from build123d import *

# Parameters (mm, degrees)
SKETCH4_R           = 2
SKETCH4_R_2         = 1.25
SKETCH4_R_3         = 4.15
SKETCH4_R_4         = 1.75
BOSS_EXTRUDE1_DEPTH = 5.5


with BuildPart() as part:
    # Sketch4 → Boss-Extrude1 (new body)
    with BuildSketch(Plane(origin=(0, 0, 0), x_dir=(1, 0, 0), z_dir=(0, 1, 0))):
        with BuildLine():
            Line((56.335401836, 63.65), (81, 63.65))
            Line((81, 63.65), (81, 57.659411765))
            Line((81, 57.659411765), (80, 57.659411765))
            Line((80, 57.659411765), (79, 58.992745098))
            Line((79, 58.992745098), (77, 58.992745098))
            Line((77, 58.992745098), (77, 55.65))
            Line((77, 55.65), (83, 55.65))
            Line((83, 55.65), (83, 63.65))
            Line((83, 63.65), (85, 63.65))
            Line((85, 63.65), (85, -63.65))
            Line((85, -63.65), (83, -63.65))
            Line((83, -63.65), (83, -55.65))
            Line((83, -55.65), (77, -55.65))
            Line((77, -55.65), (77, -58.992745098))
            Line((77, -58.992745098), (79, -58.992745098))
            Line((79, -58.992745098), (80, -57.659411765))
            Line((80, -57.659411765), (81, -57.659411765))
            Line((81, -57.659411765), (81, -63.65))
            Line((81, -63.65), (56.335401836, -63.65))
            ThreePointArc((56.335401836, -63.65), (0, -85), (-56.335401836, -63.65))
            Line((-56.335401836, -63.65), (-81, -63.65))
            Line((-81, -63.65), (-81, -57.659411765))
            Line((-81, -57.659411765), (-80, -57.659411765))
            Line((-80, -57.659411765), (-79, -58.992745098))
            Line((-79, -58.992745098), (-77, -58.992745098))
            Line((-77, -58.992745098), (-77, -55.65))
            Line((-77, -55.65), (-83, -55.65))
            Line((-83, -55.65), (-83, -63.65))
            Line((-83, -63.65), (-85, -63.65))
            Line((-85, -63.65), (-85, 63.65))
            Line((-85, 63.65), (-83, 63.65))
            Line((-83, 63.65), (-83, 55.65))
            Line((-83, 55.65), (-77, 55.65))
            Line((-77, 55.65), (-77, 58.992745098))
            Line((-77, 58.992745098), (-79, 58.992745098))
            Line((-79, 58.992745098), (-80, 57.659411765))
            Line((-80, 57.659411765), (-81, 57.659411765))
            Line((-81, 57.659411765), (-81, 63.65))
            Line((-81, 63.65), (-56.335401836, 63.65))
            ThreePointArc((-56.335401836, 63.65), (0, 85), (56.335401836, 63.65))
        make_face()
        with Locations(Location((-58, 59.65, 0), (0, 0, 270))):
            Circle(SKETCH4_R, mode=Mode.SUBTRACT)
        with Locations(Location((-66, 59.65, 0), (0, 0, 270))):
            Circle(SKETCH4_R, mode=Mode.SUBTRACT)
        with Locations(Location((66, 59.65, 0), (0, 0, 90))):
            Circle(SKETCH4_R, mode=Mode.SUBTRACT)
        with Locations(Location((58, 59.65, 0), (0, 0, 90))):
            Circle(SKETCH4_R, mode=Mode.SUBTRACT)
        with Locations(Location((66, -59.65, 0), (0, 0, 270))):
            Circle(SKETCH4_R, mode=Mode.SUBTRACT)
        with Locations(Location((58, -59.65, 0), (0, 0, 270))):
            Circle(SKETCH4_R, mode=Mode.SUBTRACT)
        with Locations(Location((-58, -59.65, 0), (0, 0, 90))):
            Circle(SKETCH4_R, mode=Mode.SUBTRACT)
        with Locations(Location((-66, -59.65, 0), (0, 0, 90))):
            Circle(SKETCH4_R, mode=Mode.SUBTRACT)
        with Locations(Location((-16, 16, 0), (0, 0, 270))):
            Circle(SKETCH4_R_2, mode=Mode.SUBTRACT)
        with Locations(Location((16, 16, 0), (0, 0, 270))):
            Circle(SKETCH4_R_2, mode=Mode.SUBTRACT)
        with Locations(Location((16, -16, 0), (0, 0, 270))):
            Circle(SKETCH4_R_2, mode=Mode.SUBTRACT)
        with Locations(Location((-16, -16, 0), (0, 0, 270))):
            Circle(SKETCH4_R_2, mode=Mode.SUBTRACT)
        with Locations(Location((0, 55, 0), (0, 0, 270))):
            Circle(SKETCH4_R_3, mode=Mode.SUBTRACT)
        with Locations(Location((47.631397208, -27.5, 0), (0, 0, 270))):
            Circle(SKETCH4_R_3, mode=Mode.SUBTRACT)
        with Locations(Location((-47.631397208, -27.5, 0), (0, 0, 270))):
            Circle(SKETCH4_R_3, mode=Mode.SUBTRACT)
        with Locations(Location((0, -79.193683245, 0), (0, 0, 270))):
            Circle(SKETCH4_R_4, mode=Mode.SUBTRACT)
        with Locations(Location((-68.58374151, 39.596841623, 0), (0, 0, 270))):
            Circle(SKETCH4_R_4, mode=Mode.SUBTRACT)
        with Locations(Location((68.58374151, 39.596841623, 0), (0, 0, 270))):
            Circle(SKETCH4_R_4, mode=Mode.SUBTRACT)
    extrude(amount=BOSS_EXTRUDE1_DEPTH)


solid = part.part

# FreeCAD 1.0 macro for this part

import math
import FreeCAD as App
import Part
import Sketcher

doc = App.newDocument("Part")
body = doc.addObject("PartDesign::Body", "Body")

# Sketch on XZ plane
sketch1 = doc.addObject("Sketcher::SketchObject", "Sketch")
body.addObject(sketch1)
sketch1.AttachmentSupport = (doc.XZ_Plane, [""])
sketch1.MapMode = "FlatFace"
sketch1.addGeometry([
    Part.LineSegment(App.Vector(81, -63.65, 0), App.Vector(56.335402, -63.65, 0)),  # 0
    Part.ArcOfCircle(Part.Circle(App.Vector(0, 0, 0), App.Vector(0, 0, 1), 85), math.radians(-131.511429), math.radians(-48.488571)),  # 1
    Part.LineSegment(App.Vector(-56.335402, -63.65, 0), App.Vector(-81, -63.65, 0)),  # 2
    Part.LineSegment(App.Vector(-81, -63.65, 0), App.Vector(-81, -57.659412, 0)),  # 3
    Part.LineSegment(App.Vector(-81, -57.659412, 0), App.Vector(-80, -57.659412, 0)),  # 4
    Part.LineSegment(App.Vector(-80, -57.659412, 0), App.Vector(-79, -58.992745, 0)),  # 5
    Part.LineSegment(App.Vector(-79, -58.992745, 0), App.Vector(-77, -58.992745, 0)),  # 6
    Part.LineSegment(App.Vector(-77, -58.992745, 0), App.Vector(-77, -55.65, 0)),  # 7
    Part.LineSegment(App.Vector(-77, -55.65, 0), App.Vector(-83, -55.65, 0)),  # 8
    Part.LineSegment(App.Vector(-83, -55.65, 0), App.Vector(-83, -63.65, 0)),  # 9
    Part.LineSegment(App.Vector(-83, -63.65, 0), App.Vector(-85, -63.65, 0)),  # 10
    Part.LineSegment(App.Vector(-85, -63.65, 0), App.Vector(-85, 63.65, 0)),  # 11
    Part.LineSegment(App.Vector(-85, 63.65, 0), App.Vector(-83, 63.65, 0)),  # 12
    Part.LineSegment(App.Vector(-83, 63.65, 0), App.Vector(-83, 55.65, 0)),  # 13
    Part.LineSegment(App.Vector(-83, 55.65, 0), App.Vector(-77, 55.65, 0)),  # 14
    Part.LineSegment(App.Vector(-77, 55.65, 0), App.Vector(-77, 58.992745, 0)),  # 15
    Part.LineSegment(App.Vector(-77, 58.992745, 0), App.Vector(-79, 58.992745, 0)),  # 16
    Part.LineSegment(App.Vector(-79, 58.992745, 0), App.Vector(-80, 57.659412, 0)),  # 17
    Part.LineSegment(App.Vector(-80, 57.659412, 0), App.Vector(-81, 57.659412, 0)),  # 18
    Part.LineSegment(App.Vector(-81, 57.659412, 0), App.Vector(-81, 63.65, 0)),  # 19
    Part.LineSegment(App.Vector(-81, 63.65, 0), App.Vector(-56.335402, 63.65, 0)),  # 20
    Part.ArcOfCircle(Part.Circle(App.Vector(0, 0, 0), App.Vector(0, 0, 1), 85), math.radians(48.488571), math.radians(131.511429)),  # 21
    Part.LineSegment(App.Vector(56.335402, 63.65, 0), App.Vector(81, 63.65, 0)),  # 22
    Part.LineSegment(App.Vector(81, 63.65, 0), App.Vector(81, 57.659412, 0)),  # 23
    Part.LineSegment(App.Vector(81, 57.659412, 0), App.Vector(80, 57.659412, 0)),  # 24
    Part.LineSegment(App.Vector(80, 57.659412, 0), App.Vector(79, 58.992745, 0)),  # 25
    Part.LineSegment(App.Vector(79, 58.992745, 0), App.Vector(77, 58.992745, 0)),  # 26
    Part.LineSegment(App.Vector(77, 58.992745, 0), App.Vector(77, 55.65, 0)),  # 27
    Part.LineSegment(App.Vector(77, 55.65, 0), App.Vector(83, 55.65, 0)),  # 28
    Part.LineSegment(App.Vector(83, 55.65, 0), App.Vector(83, 63.65, 0)),  # 29
    Part.LineSegment(App.Vector(83, 63.65, 0), App.Vector(85, 63.65, 0)),  # 30
    Part.LineSegment(App.Vector(85, 63.65, 0), App.Vector(85, -63.65, 0)),  # 31
    Part.LineSegment(App.Vector(85, -63.65, 0), App.Vector(83, -63.65, 0)),  # 32
    Part.LineSegment(App.Vector(83, -63.65, 0), App.Vector(83, -55.65, 0)),  # 33
    Part.LineSegment(App.Vector(83, -55.65, 0), App.Vector(77, -55.65, 0)),  # 34
    Part.LineSegment(App.Vector(77, -55.65, 0), App.Vector(77, -58.992745, 0)),  # 35
    Part.LineSegment(App.Vector(77, -58.992745, 0), App.Vector(79, -58.992745, 0)),  # 36
    Part.LineSegment(App.Vector(79, -58.992745, 0), App.Vector(80, -57.659412, 0)),  # 37
    Part.LineSegment(App.Vector(80, -57.659412, 0), App.Vector(81, -57.659412, 0)),  # 38
    Part.LineSegment(App.Vector(81, -57.659412, 0), App.Vector(81, -63.65, 0)),  # 39
    Part.Circle(App.Vector(66, 59.65, 0), App.Vector(0, 0, 1), 2),  # 40
    Part.Circle(App.Vector(58, 59.65, 0), App.Vector(0, 0, 1), 2),  # 41
    Part.Circle(App.Vector(47.631397, 27.5, 0), App.Vector(0, 0, 1), 4.15),  # 42
    Part.Circle(App.Vector(16, 16, 0), App.Vector(0, 0, 1), 1.25),  # 43
    Part.Circle(App.Vector(0, 79.193683, 0), App.Vector(0, 0, 1), 1.75),  # 44
    Part.Circle(App.Vector(-58, 59.65, 0), App.Vector(0, 0, 1), 2),  # 45
    Part.Circle(App.Vector(-66, 59.65, 0), App.Vector(0, 0, 1), 2),  # 46
    Part.Circle(App.Vector(-16, 16, 0), App.Vector(0, 0, 1), 1.25),  # 47
    Part.Circle(App.Vector(-47.631397, 27.5, 0), App.Vector(0, 0, 1), 4.15),  # 48
    Part.Circle(App.Vector(16, -16, 0), App.Vector(0, 0, 1), 1.25),  # 49
    Part.Circle(App.Vector(68.583742, -39.596842, 0), App.Vector(0, 0, 1), 1.75),  # 50
    Part.Circle(App.Vector(66, -59.65, 0), App.Vector(0, 0, 1), 2),  # 51
    Part.Circle(App.Vector(58, -59.65, 0), App.Vector(0, 0, 1), 2),  # 52
    Part.Circle(App.Vector(-16, -16, 0), App.Vector(0, 0, 1), 1.25),  # 53
    Part.Circle(App.Vector(0, -55, 0), App.Vector(0, 0, 1), 4.15),  # 54
    Part.Circle(App.Vector(-68.583742, -39.596842, 0), App.Vector(0, 0, 1), 1.75),  # 55
    Part.Circle(App.Vector(-58, -59.65, 0), App.Vector(0, 0, 1), 2),  # 56
    Part.Circle(App.Vector(-66, -59.65, 0), App.Vector(0, 0, 1), 2),  # 57
], False)
sketch1.addConstraint([
    Sketcher.Constraint("Coincident", 0, 2, 1, 2),
    Sketcher.Constraint("Coincident", 1, 1, 2, 1),
    Sketcher.Constraint("Coincident", 2, 2, 3, 1),
    Sketcher.Constraint("Coincident", 3, 2, 4, 1),
    Sketcher.Constraint("Coincident", 4, 2, 5, 1),
    Sketcher.Constraint("Coincident", 5, 2, 6, 1),
    Sketcher.Constraint("Coincident", 6, 2, 7, 1),
    Sketcher.Constraint("Coincident", 7, 2, 8, 1),
    Sketcher.Constraint("Coincident", 8, 2, 9, 1),
    Sketcher.Constraint("Coincident", 9, 2, 10, 1),
    Sketcher.Constraint("Coincident", 10, 2, 11, 1),
    Sketcher.Constraint("Coincident", 11, 2, 12, 1),
    Sketcher.Constraint("Coincident", 12, 2, 13, 1),
    Sketcher.Constraint("Coincident", 13, 2, 14, 1),
    Sketcher.Constraint("Coincident", 14, 2, 15, 1),
    Sketcher.Constraint("Coincident", 15, 2, 16, 1),
    Sketcher.Constraint("Coincident", 16, 2, 17, 1),
    Sketcher.Constraint("Coincident", 17, 2, 18, 1),
    Sketcher.Constraint("Coincident", 18, 2, 19, 1),
    Sketcher.Constraint("Coincident", 19, 2, 20, 1),
    Sketcher.Constraint("Coincident", 20, 2, 21, 2),
    Sketcher.Constraint("Coincident", 21, 1, 22, 1),
    Sketcher.Constraint("Coincident", 22, 2, 23, 1),
    Sketcher.Constraint("Coincident", 23, 2, 24, 1),
    Sketcher.Constraint("Coincident", 24, 2, 25, 1),
    Sketcher.Constraint("Coincident", 25, 2, 26, 1),
    Sketcher.Constraint("Coincident", 26, 2, 27, 1),
    Sketcher.Constraint("Coincident", 27, 2, 28, 1),
    Sketcher.Constraint("Coincident", 28, 2, 29, 1),
    Sketcher.Constraint("Coincident", 29, 2, 30, 1),
    Sketcher.Constraint("Coincident", 30, 2, 31, 1),
    Sketcher.Constraint("Coincident", 31, 2, 32, 1),
    Sketcher.Constraint("Coincident", 32, 2, 33, 1),
    Sketcher.Constraint("Coincident", 33, 2, 34, 1),
    Sketcher.Constraint("Coincident", 34, 2, 35, 1),
    Sketcher.Constraint("Coincident", 35, 2, 36, 1),
    Sketcher.Constraint("Coincident", 36, 2, 37, 1),
    Sketcher.Constraint("Coincident", 37, 2, 38, 1),
    Sketcher.Constraint("Coincident", 38, 2, 39, 1),
    Sketcher.Constraint("Coincident", 39, 2, 0, 1),
    Sketcher.Constraint("Horizontal", 0),
    Sketcher.Constraint("Horizontal", 2),
    Sketcher.Constraint("Vertical", 3),
    Sketcher.Constraint("Horizontal", 4),
    Sketcher.Constraint("Horizontal", 6),
    Sketcher.Constraint("Vertical", 7),
    Sketcher.Constraint("Horizontal", 8),
    Sketcher.Constraint("Vertical", 9),
    Sketcher.Constraint("Horizontal", 10),
    Sketcher.Constraint("Vertical", 11),
    Sketcher.Constraint("Horizontal", 12),
    Sketcher.Constraint("Vertical", 13),
    Sketcher.Constraint("Horizontal", 14),
    Sketcher.Constraint("Vertical", 15),
    Sketcher.Constraint("Horizontal", 16),
    Sketcher.Constraint("Horizontal", 18),
    Sketcher.Constraint("Vertical", 19),
    Sketcher.Constraint("Horizontal", 20),
    Sketcher.Constraint("Horizontal", 22),
    Sketcher.Constraint("Vertical", 23),
    Sketcher.Constraint("Horizontal", 24),
    Sketcher.Constraint("Horizontal", 26),
    Sketcher.Constraint("Vertical", 27),
    Sketcher.Constraint("Horizontal", 28),
    Sketcher.Constraint("Vertical", 29),
    Sketcher.Constraint("Horizontal", 30),
    Sketcher.Constraint("Vertical", 31),
    Sketcher.Constraint("Horizontal", 32),
    Sketcher.Constraint("Vertical", 33),
    Sketcher.Constraint("Horizontal", 34),
    Sketcher.Constraint("Vertical", 35),
    Sketcher.Constraint("Horizontal", 36),
    Sketcher.Constraint("Horizontal", 38),
    Sketcher.Constraint("Vertical", 39),
    Sketcher.Constraint("Coincident", 1, 3, -1, 1),
    Sketcher.Constraint("Coincident", 21, 3, -1, 1),
    Sketcher.Constraint("Equal", 1, 21),
    Sketcher.Constraint("Equal", 40, 41),
    Sketcher.Constraint("Equal", 41, 45),
    Sketcher.Constraint("Equal", 45, 46),
    Sketcher.Constraint("Equal", 43, 47),
    Sketcher.Constraint("Equal", 42, 48),
    Sketcher.Constraint("Equal", 47, 49),
    Sketcher.Constraint("Equal", 44, 50),
    Sketcher.Constraint("Equal", 46, 51),
    Sketcher.Constraint("Equal", 51, 52),
    Sketcher.Constraint("Equal", 49, 53),
    Sketcher.Constraint("Equal", 48, 54),
    Sketcher.Constraint("Equal", 50, 55),
    Sketcher.Constraint("Equal", 52, 56),
    Sketcher.Constraint("Equal", 56, 57),
    Sketcher.Constraint("Symmetric", 47, 3, 49, 3, -1, 1),
    Sketcher.Constraint("Symmetric", 46, 3, 51, 3, -1, 1),
    Sketcher.Constraint("Symmetric", 45, 3, 52, 3, -1, 1),
    Sketcher.Constraint("Symmetric", 43, 3, 53, 3, -1, 1),
    Sketcher.Constraint("Symmetric", 41, 3, 56, 3, -1, 1),
    Sketcher.Constraint("Symmetric", 40, 3, 57, 3, -1, 1),
    Sketcher.Constraint("Symmetric", 2, 2, 22, 2, -1, 1),
    Sketcher.Constraint("Symmetric", 4, 2, 24, 2, -1, 1),
    Sketcher.Constraint("Symmetric", 5, 2, 25, 2, -1, 1),
    Sketcher.Constraint("Symmetric", 7, 2, 27, 2, -1, 1),
    Sketcher.Constraint("Symmetric", 9, 2, 29, 2, -1, 1),
    Sketcher.Constraint("Symmetric", 11, 2, 31, 2, -1, 1),
    Sketcher.Constraint("Symmetric", 13, 2, 33, 2, -1, 1),
    Sketcher.Constraint("Symmetric", 15, 2, 35, 2, -1, 1),
    Sketcher.Constraint("Symmetric", 17, 2, 37, 2, -1, 1),
    Sketcher.Constraint("Symmetric", 19, 2, 39, 2, -1, 1),
    Sketcher.Constraint("Symmetric", 41, 3, 45, 3, -2),
    Sketcher.Constraint("Symmetric", 40, 3, 46, 3, -2),
    Sketcher.Constraint("Symmetric", 43, 3, 47, 3, -2),
    Sketcher.Constraint("Symmetric", 42, 3, 48, 3, -2),
    Sketcher.Constraint("Symmetric", 50, 3, 55, 3, -2),
    Sketcher.Constraint("Symmetric", 19, 2, 22, 2, -2),
    Sketcher.Constraint("Symmetric", 17, 2, 24, 2, -2),
    Sketcher.Constraint("Symmetric", 16, 2, 25, 2, -2),
    Sketcher.Constraint("Symmetric", 14, 2, 27, 2, -2),
    Sketcher.Constraint("Symmetric", 12, 2, 29, 2, -2),
    Sketcher.Constraint("PointOnObject", 44, 3, -2),
    Sketcher.Constraint("PointOnObject", 54, 3, -2),
    Sketcher.Constraint("Parallel", 17, 37),
    Sketcher.Constraint("Horizontal", 40, 3, 41, 3),
    Sketcher.Constraint("Horizontal", 2, 2, 9, 2),
    Sketcher.Constraint("Equal", 6, 10),
    Sketcher.Constraint("Diameter", 40, 4.0),
    Sketcher.Constraint("Radius", 1, 85.0),
    Sketcher.Constraint("Diameter", 42, 8.3),
    Sketcher.Constraint("Diameter", 43, 2.5),
    Sketcher.Constraint("Diameter", 44, 3.5),
    Sketcher.Constraint("DistanceX", 4, 1, 4, 2, 1.0),
    Sketcher.Constraint("DistanceX", 6, 1, 6, 2, 2.0),
    Sketcher.Constraint("DistanceX", 8, 2, 8, 1, 6.0),
    Sketcher.Constraint("DistanceY", 9, 2, 9, 1, 8.0),
    Sketcher.Constraint("DistanceY", 11, 1, 11, 2, 127.3),
    Sketcher.Constraint("DistanceX", -1, 1, 40, 3, 66.0),
    Sketcher.Constraint("DistanceX", -1, 1, 41, 3, 58.0),
    Sketcher.Constraint("DistanceX", -1, 1, 43, 3, 16.0),
    Sketcher.Constraint("DistanceY", -1, 1, 43, 3, 16.0),
    Sketcher.Constraint("DistanceY", 54, 3, -1, 1, 55.0),
    Sketcher.Constraint("DistanceX", 2, 2, -1, 1, 81.0),
    Sketcher.Constraint("DistanceX", 5, 2, -1, 1, 79.0),
    Sketcher.Constraint("DistanceY", 0, 2, 52, 3, 4.0),
    Sketcher.Constraint("DistanceY", -1, 1, 42, 3, 27.5),
    Sketcher.Constraint("DistanceY", 3, 1, 3, 2, 5.990588),
    Sketcher.Constraint("DistanceY", 7, 1, 7, 2, 3.342745),
    Sketcher.Constraint("DistanceX", -1, 1, 50, 3, 68.583742),
    Sketcher.Constraint("DistanceY", 50, 3, -1, 1, 39.596842),
    Sketcher.Constraint("DistanceX", -1, 1, 42, 3, 47.631397),
    Sketcher.Constraint("DistanceY", -1, 1, 44, 3, 79.193683),
])
pad1 = doc.addObject("PartDesign::Pad", "Pad")
body.addObject(pad1)
pad1.Profile = sketch1
pad1.Length = 5.5
pad1.Reversed = True

doc.recompute()
